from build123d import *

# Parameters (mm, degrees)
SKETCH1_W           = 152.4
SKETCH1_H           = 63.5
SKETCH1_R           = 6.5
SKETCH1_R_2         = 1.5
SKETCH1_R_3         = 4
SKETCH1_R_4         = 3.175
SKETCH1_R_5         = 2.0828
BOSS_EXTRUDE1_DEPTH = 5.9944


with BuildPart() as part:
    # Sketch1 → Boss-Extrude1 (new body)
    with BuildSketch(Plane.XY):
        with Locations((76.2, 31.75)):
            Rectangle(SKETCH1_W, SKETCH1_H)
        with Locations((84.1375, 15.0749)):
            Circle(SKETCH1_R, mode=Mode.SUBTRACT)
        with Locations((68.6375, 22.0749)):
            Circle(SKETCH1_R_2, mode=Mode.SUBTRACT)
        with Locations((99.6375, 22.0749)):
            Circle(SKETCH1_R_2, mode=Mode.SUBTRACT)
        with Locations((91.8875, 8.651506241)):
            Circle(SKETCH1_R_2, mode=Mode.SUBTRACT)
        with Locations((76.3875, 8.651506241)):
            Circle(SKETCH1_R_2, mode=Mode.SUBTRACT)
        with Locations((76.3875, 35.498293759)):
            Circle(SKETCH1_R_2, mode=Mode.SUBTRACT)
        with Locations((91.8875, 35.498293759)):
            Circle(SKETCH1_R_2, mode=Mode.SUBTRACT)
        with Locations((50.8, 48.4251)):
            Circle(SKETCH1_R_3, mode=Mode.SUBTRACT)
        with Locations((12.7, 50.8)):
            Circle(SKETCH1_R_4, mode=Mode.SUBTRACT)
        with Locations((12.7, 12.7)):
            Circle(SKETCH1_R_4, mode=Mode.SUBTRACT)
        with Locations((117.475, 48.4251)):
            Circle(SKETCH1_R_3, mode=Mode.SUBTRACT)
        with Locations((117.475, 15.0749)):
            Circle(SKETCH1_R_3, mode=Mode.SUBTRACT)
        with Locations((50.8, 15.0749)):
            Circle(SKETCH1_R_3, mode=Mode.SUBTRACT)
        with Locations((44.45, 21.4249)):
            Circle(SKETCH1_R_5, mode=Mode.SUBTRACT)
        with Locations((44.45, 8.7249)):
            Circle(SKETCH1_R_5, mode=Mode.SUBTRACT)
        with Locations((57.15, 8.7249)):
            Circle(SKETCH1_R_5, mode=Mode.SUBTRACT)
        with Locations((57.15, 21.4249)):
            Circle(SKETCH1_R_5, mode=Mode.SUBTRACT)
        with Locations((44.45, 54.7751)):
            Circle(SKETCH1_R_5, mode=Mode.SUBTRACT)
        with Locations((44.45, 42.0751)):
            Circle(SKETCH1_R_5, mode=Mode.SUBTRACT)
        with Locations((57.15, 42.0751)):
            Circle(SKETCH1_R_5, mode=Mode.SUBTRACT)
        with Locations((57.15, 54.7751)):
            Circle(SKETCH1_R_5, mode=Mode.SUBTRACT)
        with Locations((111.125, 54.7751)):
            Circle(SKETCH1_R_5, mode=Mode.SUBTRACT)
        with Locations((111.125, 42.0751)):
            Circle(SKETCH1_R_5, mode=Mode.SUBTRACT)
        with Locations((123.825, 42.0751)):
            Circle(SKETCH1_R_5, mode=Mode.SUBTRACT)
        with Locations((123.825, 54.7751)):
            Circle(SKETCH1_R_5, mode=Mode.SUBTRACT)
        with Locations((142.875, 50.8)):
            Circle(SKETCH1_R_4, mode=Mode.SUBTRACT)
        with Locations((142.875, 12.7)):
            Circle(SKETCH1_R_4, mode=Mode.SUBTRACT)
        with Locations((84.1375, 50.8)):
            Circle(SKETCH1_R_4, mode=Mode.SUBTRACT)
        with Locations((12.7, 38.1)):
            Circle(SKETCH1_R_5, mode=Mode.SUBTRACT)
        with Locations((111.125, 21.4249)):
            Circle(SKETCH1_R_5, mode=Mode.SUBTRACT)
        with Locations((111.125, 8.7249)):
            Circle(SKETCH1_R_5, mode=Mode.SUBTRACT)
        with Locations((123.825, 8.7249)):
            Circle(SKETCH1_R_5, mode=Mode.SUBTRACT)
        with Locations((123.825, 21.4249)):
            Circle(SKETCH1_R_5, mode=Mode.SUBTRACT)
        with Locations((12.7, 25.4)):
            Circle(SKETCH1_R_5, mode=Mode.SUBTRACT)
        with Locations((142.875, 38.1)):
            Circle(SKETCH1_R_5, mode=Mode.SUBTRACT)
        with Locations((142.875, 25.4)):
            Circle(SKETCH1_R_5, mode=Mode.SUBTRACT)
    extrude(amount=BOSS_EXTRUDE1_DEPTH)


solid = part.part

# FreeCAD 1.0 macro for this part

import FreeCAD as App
import Part
import Sketcher
Q = App.Units.Quantity

doc = App.newDocument("Part")
params = doc.addObject("Spreadsheet::Sheet", "Params")
for row, (alias, value) in enumerate([
    ("sketch1_diameter", "0.25 in"),
    ("sketch1_width", "6 in"),
    ("sketch1_diameter2", "0.164 in"),
    ("sketch1_height", "2.5 in"),
    ("pad1_length", "0.236 in"),
], start=1):
    params.set(f"A{row}", alias)
    params.set(f"B{row}", "=" + value)
    params.setAlias(f"B{row}", alias)

body = doc.addObject("PartDesign::Body", "Body")

# Sketch on XY plane
sketch1 = body.newObject("Sketcher::SketchObject", "Sketch")
sketch1.AttachmentSupport = (doc.getObject("XY_Plane"), [""])
sketch1.MapMode = "FlatFace"
sketch1.addGeometry(Part.LineSegment(App.Vector(0, 63.5, 0), App.Vector(0, 0, 0)), False)
sketch1.addGeometry(Part.LineSegment(App.Vector(0, 0, 0), App.Vector(152.4, 0, 0)), False)
sketch1.addGeometry(Part.LineSegment(App.Vector(152.4, 0, 0), App.Vector(152.4, 63.5, 0)), False)
sketch1.addGeometry(Part.LineSegment(App.Vector(152.4, 63.5, 0), App.Vector(0, 63.5, 0)), False)
sketch1.addGeometry(Part.Circle(App.Vector(12.7, 12.7, 0), App.Vector(0, 0, 1), 3.2), False)
sketch1.addGeometry(Part.Circle(App.Vector(44.5, 8.7, 0), App.Vector(0, 0, 1), 2.1), False)
sketch1.addGeometry(Part.Circle(App.Vector(57.1, 8.7, 0), App.Vector(0, 0, 1), 2.1), False)
sketch1.addGeometry(Part.Circle(App.Vector(76.4, 8.7, 0), App.Vector(0, 0, 1), 1.5), False)
sketch1.addGeometry(Part.Circle(App.Vector(50.8, 15.1, 0), App.Vector(0, 0, 1), 4), False)
sketch1.addGeometry(Part.Circle(App.Vector(12.7, 25.4, 0), App.Vector(0, 0, 1), 2.1), False)
sketch1.addGeometry(Part.Circle(App.Vector(44.5, 21.4, 0), App.Vector(0, 0, 1), 2.1), False)
sketch1.addGeometry(Part.Circle(App.Vector(57.1, 21.4, 0), App.Vector(0, 0, 1), 2.1), False)
sketch1.addGeometry(Part.Circle(App.Vector(68.6, 22.1, 0), App.Vector(0, 0, 1), 1.5), False)
sketch1.addGeometry(Part.Circle(App.Vector(91.9, 8.7, 0), App.Vector(0, 0, 1), 1.5), False)
sketch1.addGeometry(Part.Circle(App.Vector(111.1, 8.7, 0), App.Vector(0, 0, 1), 2.1), False)
sketch1.addGeometry(Part.Circle(App.Vector(84.1, 15.1, 0), App.Vector(0, 0, 1), 6.5), False)
sketch1.addGeometry(Part.Circle(App.Vector(123.8, 8.7, 0), App.Vector(0, 0, 1), 2.1), False)
sketch1.addGeometry(Part.Circle(App.Vector(142.9, 12.7, 0), App.Vector(0, 0, 1), 3.2), False)
sketch1.addGeometry(Part.Circle(App.Vector(117.5, 15.1, 0), App.Vector(0, 0, 1), 4), False)
sketch1.addGeometry(Part.Circle(App.Vector(99.6, 22.1, 0), App.Vector(0, 0, 1), 1.5), False)
sketch1.addGeometry(Part.Circle(App.Vector(111.1, 21.4, 0), App.Vector(0, 0, 1), 2.1), False)
sketch1.addGeometry(Part.Circle(App.Vector(123.8, 21.4, 0), App.Vector(0, 0, 1), 2.1), False)
sketch1.addGeometry(Part.Circle(App.Vector(142.9, 25.4, 0), App.Vector(0, 0, 1), 2.1), False)
sketch1.addGeometry(Part.Circle(App.Vector(12.7, 38.1, 0), App.Vector(0, 0, 1), 2.1), False)
sketch1.addGeometry(Part.Circle(App.Vector(76.4, 35.5, 0), App.Vector(0, 0, 1), 1.5), False)
sketch1.addGeometry(Part.Circle(App.Vector(44.5, 42.1, 0), App.Vector(0, 0, 1), 2.1), False)
sketch1.addGeometry(Part.Circle(App.Vector(57.1, 42.1, 0), App.Vector(0, 0, 1), 2.1), False)
sketch1.addGeometry(Part.Circle(App.Vector(12.7, 50.8, 0), App.Vector(0, 0, 1), 3.2), False)
sketch1.addGeometry(Part.Circle(App.Vector(50.8, 48.4, 0), App.Vector(0, 0, 1), 4), False)
sketch1.addGeometry(Part.Circle(App.Vector(44.5, 54.8, 0), App.Vector(0, 0, 1), 2.1), False)
sketch1.addGeometry(Part.Circle(App.Vector(57.1, 54.8, 0), App.Vector(0, 0, 1), 2.1), False)
sketch1.addGeometry(Part.Circle(App.Vector(91.9, 35.5, 0), App.Vector(0, 0, 1), 1.5), False)
sketch1.addGeometry(Part.Circle(App.Vector(111.1, 42.1, 0), App.Vector(0, 0, 1), 2.1), False)
sketch1.addGeometry(Part.Circle(App.Vector(123.8, 42.1, 0), App.Vector(0, 0, 1), 2.1), False)
sketch1.addGeometry(Part.Circle(App.Vector(142.9, 38.1, 0), App.Vector(0, 0, 1), 2.1), False)
sketch1.addGeometry(Part.Circle(App.Vector(84.1, 50.8, 0), App.Vector(0, 0, 1), 3.2), False)
sketch1.addGeometry(Part.Circle(App.Vector(111.1, 54.8, 0), App.Vector(0, 0, 1), 2.1), False)
sketch1.addGeometry(Part.Circle(App.Vector(117.5, 48.4, 0), App.Vector(0, 0, 1), 4), False)
sketch1.addGeometry(Part.Circle(App.Vector(123.8, 54.8, 0), App.Vector(0, 0, 1), 2.1), False)
sketch1.addGeometry(Part.Circle(App.Vector(142.9, 50.8, 0), App.Vector(0, 0, 1), 3.2), False)
sketch1.addConstraint(Sketcher.Constraint("Coincident", 0, 2, 1, 1))
sketch1.addConstraint(Sketcher.Constraint("Coincident", 1, 2, 2, 1))
sketch1.addConstraint(Sketcher.Constraint("Coincident", 2, 2, 3, 1))
sketch1.addConstraint(Sketcher.Constraint("Coincident", 3, 2, 0, 1))
sketch1.addConstraint(Sketcher.Constraint("Vertical", 0))
sketch1.addConstraint(Sketcher.Constraint("Horizontal", 1))
sketch1.addConstraint(Sketcher.Constraint("Vertical", 2))
sketch1.addConstraint(Sketcher.Constraint("Horizontal", 3))
sketch1.addConstraint(Sketcher.Constraint("Coincident", 0, 2, -1, 1))
sketch1.addConstraint(Sketcher.Constraint("Equal", 5, 6))
sketch1.addConstraint(Sketcher.Constraint("Equal", 6, 9))
sketch1.addConstraint(Sketcher.Constraint("Equal", 9, 10))
sketch1.addConstraint(Sketcher.Constraint("Equal", 10, 11))
sketch1.addConstraint(Sketcher.Constraint("Equal", 7, 12))
sketch1.addConstraint(Sketcher.Constraint("Equal", 12, 13))
sketch1.addConstraint(Sketcher.Constraint("Equal", 11, 14))
sketch1.addConstraint(Sketcher.Constraint("Equal", 14, 16))
sketch1.addConstraint(Sketcher.Constraint("Equal", 4, 17))
sketch1.addConstraint(Sketcher.Constraint("Equal", 8, 18))
sketch1.addConstraint(Sketcher.Constraint("Equal", 13, 19))
sketch1.addConstraint(Sketcher.Constraint("Equal", 16, 20))
sketch1.addConstraint(Sketcher.Constraint("Equal", 20, 21))
sketch1.addConstraint(Sketcher.Constraint("Equal", 21, 22))
sketch1.addConstraint(Sketcher.Constraint("Equal", 22, 23))
sketch1.addConstraint(Sketcher.Constraint("Equal", 19, 24))
sketch1.addConstraint(Sketcher.Constraint("Equal", 23, 25))
sketch1.addConstraint(Sketcher.Constraint("Equal", 25, 26))
sketch1.addConstraint(Sketcher.Constraint("Equal", 17, 27))
sketch1.addConstraint(Sketcher.Constraint("Equal", 18, 28))
sketch1.addConstraint(Sketcher.Constraint("Equal", 26, 29))
sketch1.addConstraint(Sketcher.Constraint("Equal", 29, 30))
sketch1.addConstraint(Sketcher.Constraint("Equal", 24, 31))
sketch1.addConstraint(Sketcher.Constraint("Equal", 30, 32))
sketch1.addConstraint(Sketcher.Constraint("Equal", 32, 33))
sketch1.addConstraint(Sketcher.Constraint("Equal", 33, 34))
sketch1.addConstraint(Sketcher.Constraint("Equal", 27, 35))
sketch1.addConstraint(Sketcher.Constraint("Equal", 34, 36))
sketch1.addConstraint(Sketcher.Constraint("Equal", 28, 37))
sketch1.addConstraint(Sketcher.Constraint("Equal", 36, 38))
sketch1.addConstraint(Sketcher.Constraint("Equal", 35, 39))
sketch1.addConstraint(Sketcher.Constraint("Horizontal", 5, 3, 6, 3))
sketch1.addConstraint(Sketcher.Constraint("Horizontal", 10, 3, 11, 3))
sketch1.addConstraint(Sketcher.Constraint("Horizontal", 7, 3, 13, 3))
sketch1.addConstraint(Sketcher.Constraint("Horizontal", 6, 3, 14, 3))
sketch1.addConstraint(Sketcher.Constraint("Horizontal", 8, 3, 15, 3))
sketch1.addConstraint(Sketcher.Constraint("Horizontal", 14, 3, 16, 3))
sketch1.addConstraint(Sketcher.Constraint("Horizontal", 4, 3, 17, 3))
sketch1.addConstraint(Sketcher.Constraint("Horizontal", 15, 3, 18, 3))
sketch1.addConstraint(Sketcher.Constraint("Horizontal", 12, 3, 19, 3))
sketch1.addConstraint(Sketcher.Constraint("Horizontal", 11, 3, 20, 3))
sketch1.addConstraint(Sketcher.Constraint("Horizontal", 20, 3, 21, 3))
sketch1.addConstraint(Sketcher.Constraint("Horizontal", 9, 3, 22, 3))
sketch1.addConstraint(Sketcher.Constraint("Horizontal", 25, 3, 26, 3))
sketch1.addConstraint(Sketcher.Constraint("Horizontal", 29, 3, 30, 3))
sketch1.addConstraint(Sketcher.Constraint("Horizontal", 24, 3, 31, 3))
sketch1.addConstraint(Sketcher.Constraint("Horizontal", 26, 3, 32, 3))
sketch1.addConstraint(Sketcher.Constraint("Horizontal", 32, 3, 33, 3))
sketch1.addConstraint(Sketcher.Constraint("Horizontal", 23, 3, 34, 3))
sketch1.addConstraint(Sketcher.Constraint("Horizontal", 27, 3, 35, 3))
sketch1.addConstraint(Sketcher.Constraint("Horizontal", 30, 3, 36, 3))
sketch1.addConstraint(Sketcher.Constraint("Horizontal", 28, 3, 37, 3))
sketch1.addConstraint(Sketcher.Constraint("Horizontal", 36, 3, 38, 3))
sketch1.addConstraint(Sketcher.Constraint("Horizontal", 35, 3, 39, 3))
sketch1.addConstraint(Sketcher.Constraint("Vertical", 4, 3, 9, 3))
sketch1.addConstraint(Sketcher.Constraint("Vertical", 5, 3, 10, 3))
sketch1.addConstraint(Sketcher.Constraint("Vertical", 6, 3, 11, 3))
sketch1.addConstraint(Sketcher.Constraint("Vertical", 14, 3, 20, 3))
sketch1.addConstraint(Sketcher.Constraint("Vertical", 16, 3, 21, 3))
sketch1.addConstraint(Sketcher.Constraint("Vertical", 17, 3, 22, 3))
sketch1.addConstraint(Sketcher.Constraint("Vertical", 9, 3, 23, 3))
sketch1.addConstraint(Sketcher.Constraint("Vertical", 7, 3, 24, 3))
sketch1.addConstraint(Sketcher.Constraint("Vertical", 10, 3, 25, 3))
sketch1.addConstraint(Sketcher.Constraint("Vertical", 11, 3, 26, 3))
sketch1.addConstraint(Sketcher.Constraint("Vertical", 23, 3, 27, 3))
sketch1.addConstraint(Sketcher.Constraint("Vertical", 8, 3, 28, 3))
sketch1.addConstraint(Sketcher.Constraint("Vertical", 25, 3, 29, 3))
sketch1.addConstraint(Sketcher.Constraint("Vertical", 26, 3, 30, 3))
sketch1.addConstraint(Sketcher.Constraint("Vertical", 13, 3, 31, 3))
sketch1.addConstraint(Sketcher.Constraint("Vertical", 20, 3, 32, 3))
sketch1.addConstraint(Sketcher.Constraint("Vertical", 21, 3, 33, 3))
sketch1.addConstraint(Sketcher.Constraint("Vertical", 22, 3, 34, 3))
sketch1.addConstraint(Sketcher.Constraint("Vertical", 15, 3, 35, 3))
sketch1.addConstraint(Sketcher.Constraint("Vertical", 32, 3, 36, 3))
sketch1.addConstraint(Sketcher.Constraint("Vertical", 18, 3, 37, 3))
sketch1.addConstraint(Sketcher.Constraint("Vertical", 33, 3, 38, 3))
sketch1.addConstraint(Sketcher.Constraint("Vertical", 34, 3, 39, 3))
sketch1.addConstraint(Sketcher.Constraint("Diameter", 4, Q("0.25 in")))
sketch1.addConstraint(Sketcher.Constraint("DistanceX", 1, 1, 1, 2, Q("6 in")))
sketch1.addConstraint(Sketcher.Constraint("Diameter", 5, Q("0.164 in")))
sketch1.addConstraint(Sketcher.Constraint("DistanceY", 0, 2, 0, 1, Q("2.5 in")))
sketch1.addConstraint(Sketcher.Constraint("DistanceX", -1, 1, 8, 3, Q("2 in")))
sketch1.addConstraint(Sketcher.Constraint("DistanceY", -1, 1, 9, 3, Q("1 in")))
sketch1.addConstraint(Sketcher.Constraint("DistanceY", -1, 1, 27, 3, Q("2 in")))
sketch1.addConstraint(Sketcher.Constraint("DistanceX", 18, 3, 17, 3, Q("1 in")))
sketch1.addConstraint(Sketcher.Constraint("DistanceY", 4, 3, 23, 3, Q("1 in")))
sketch1.addConstraint(Sketcher.Constraint("DistanceY", 34, 3, 2, 2, Q("1 in")))
sketch1.addConstraint(Sketcher.Constraint("DistanceX", -1, 1, 4, 3, Q("0.5 in")))
sketch1.addConstraint(Sketcher.Constraint("DistanceX", 5, 3, 6, 3, Q("0.5 in")))
sketch1.addConstraint(Sketcher.Constraint("DistanceY", 5, 3, 10, 3, Q("0.5 in")))
sketch1.addConstraint(Sketcher.Constraint("DistanceX", 14, 3, 16, 3, Q("0.5 in")))
sketch1.addConstraint(Sketcher.Constraint("DistanceY", 25, 3, 29, 3, Q("0.5 in")))
sketch1.addConstraint(Sketcher.Constraint("Diameter", 7, Q("3 mm")))
sketch1.addConstraint(Sketcher.Constraint("Diameter", 8, Q("8 mm")))
sketch1.addConstraint(Sketcher.Constraint("Diameter", 15, Q("13 mm")))
sketch1.addConstraint(Sketcher.Constraint("DistanceX", -1, 1, 5, 3, Q("1.75 in")))
sketch1.addConstraint(Sketcher.Constraint("DistanceY", 5, 3, 8, 3, Q("0.25 in")))
sketch1.addConstraint(Sketcher.Constraint("DistanceX", 16, 3, 17, 3, Q("0.75 in")))
sketch1.addConstraint(Sketcher.Constraint("DistanceY", 25, 3, 28, 3, Q("0.25 in")))
sketch1.addConstraint(Sketcher.Constraint("DistanceX", -1, 1, 14, 3, Q("4.375 in")))
sketch1.addConstraint(Sketcher.Constraint("DistanceX", -1, 1, 15, 3, Q("3.3125 in")))
sketch1.addConstraint(Sketcher.Constraint("DistanceY", 10, 3, 25, 3, Q("0.813 in")))
sketch1.addConstraint(Sketcher.Constraint("DistanceY", -1, 1, 5, 3, Q("0.3435 in")))
sketch1.addConstraint(Sketcher.Constraint("DistanceX", -1, 1, 7, 3, Q("76.3875 mm")))
sketch1.addConstraint(Sketcher.Constraint("DistanceX", -1, 1, 12, 3, Q("68.6375 mm")))
sketch1.addConstraint(Sketcher.Constraint("DistanceY", -1, 1, 12, 3, Q("22.0749 mm")))
sketch1.addConstraint(Sketcher.Constraint("DistanceX", -1, 1, 13, 3, Q("91.8875 mm")))
sketch1.addConstraint(Sketcher.Constraint("DistanceX", -1, 1, 19, 3, Q("99.6375 mm")))
sketch1.addConstraint(Sketcher.Constraint("DistanceY", -1, 1, 7, 3, Q("8.651506 mm")))
sketch1.addConstraint(Sketcher.Constraint("DistanceY", -1, 1, 24, 3, Q("35.498294 mm")))
sketch1.setExpression("Constraints[86]", "Params.sketch1_diameter")
sketch1.setExpression("Constraints[87]", "Params.sketch1_width")
sketch1.setExpression("Constraints[88]", "Params.sketch1_diameter2")
sketch1.setExpression("Constraints[89]", "Params.sketch1_height")
pad1 = body.newObject("PartDesign::Pad", "Pad")
pad1.Profile = sketch1
pad1.setExpression("Length", "Params.pad1_length")

doc.recompute()
